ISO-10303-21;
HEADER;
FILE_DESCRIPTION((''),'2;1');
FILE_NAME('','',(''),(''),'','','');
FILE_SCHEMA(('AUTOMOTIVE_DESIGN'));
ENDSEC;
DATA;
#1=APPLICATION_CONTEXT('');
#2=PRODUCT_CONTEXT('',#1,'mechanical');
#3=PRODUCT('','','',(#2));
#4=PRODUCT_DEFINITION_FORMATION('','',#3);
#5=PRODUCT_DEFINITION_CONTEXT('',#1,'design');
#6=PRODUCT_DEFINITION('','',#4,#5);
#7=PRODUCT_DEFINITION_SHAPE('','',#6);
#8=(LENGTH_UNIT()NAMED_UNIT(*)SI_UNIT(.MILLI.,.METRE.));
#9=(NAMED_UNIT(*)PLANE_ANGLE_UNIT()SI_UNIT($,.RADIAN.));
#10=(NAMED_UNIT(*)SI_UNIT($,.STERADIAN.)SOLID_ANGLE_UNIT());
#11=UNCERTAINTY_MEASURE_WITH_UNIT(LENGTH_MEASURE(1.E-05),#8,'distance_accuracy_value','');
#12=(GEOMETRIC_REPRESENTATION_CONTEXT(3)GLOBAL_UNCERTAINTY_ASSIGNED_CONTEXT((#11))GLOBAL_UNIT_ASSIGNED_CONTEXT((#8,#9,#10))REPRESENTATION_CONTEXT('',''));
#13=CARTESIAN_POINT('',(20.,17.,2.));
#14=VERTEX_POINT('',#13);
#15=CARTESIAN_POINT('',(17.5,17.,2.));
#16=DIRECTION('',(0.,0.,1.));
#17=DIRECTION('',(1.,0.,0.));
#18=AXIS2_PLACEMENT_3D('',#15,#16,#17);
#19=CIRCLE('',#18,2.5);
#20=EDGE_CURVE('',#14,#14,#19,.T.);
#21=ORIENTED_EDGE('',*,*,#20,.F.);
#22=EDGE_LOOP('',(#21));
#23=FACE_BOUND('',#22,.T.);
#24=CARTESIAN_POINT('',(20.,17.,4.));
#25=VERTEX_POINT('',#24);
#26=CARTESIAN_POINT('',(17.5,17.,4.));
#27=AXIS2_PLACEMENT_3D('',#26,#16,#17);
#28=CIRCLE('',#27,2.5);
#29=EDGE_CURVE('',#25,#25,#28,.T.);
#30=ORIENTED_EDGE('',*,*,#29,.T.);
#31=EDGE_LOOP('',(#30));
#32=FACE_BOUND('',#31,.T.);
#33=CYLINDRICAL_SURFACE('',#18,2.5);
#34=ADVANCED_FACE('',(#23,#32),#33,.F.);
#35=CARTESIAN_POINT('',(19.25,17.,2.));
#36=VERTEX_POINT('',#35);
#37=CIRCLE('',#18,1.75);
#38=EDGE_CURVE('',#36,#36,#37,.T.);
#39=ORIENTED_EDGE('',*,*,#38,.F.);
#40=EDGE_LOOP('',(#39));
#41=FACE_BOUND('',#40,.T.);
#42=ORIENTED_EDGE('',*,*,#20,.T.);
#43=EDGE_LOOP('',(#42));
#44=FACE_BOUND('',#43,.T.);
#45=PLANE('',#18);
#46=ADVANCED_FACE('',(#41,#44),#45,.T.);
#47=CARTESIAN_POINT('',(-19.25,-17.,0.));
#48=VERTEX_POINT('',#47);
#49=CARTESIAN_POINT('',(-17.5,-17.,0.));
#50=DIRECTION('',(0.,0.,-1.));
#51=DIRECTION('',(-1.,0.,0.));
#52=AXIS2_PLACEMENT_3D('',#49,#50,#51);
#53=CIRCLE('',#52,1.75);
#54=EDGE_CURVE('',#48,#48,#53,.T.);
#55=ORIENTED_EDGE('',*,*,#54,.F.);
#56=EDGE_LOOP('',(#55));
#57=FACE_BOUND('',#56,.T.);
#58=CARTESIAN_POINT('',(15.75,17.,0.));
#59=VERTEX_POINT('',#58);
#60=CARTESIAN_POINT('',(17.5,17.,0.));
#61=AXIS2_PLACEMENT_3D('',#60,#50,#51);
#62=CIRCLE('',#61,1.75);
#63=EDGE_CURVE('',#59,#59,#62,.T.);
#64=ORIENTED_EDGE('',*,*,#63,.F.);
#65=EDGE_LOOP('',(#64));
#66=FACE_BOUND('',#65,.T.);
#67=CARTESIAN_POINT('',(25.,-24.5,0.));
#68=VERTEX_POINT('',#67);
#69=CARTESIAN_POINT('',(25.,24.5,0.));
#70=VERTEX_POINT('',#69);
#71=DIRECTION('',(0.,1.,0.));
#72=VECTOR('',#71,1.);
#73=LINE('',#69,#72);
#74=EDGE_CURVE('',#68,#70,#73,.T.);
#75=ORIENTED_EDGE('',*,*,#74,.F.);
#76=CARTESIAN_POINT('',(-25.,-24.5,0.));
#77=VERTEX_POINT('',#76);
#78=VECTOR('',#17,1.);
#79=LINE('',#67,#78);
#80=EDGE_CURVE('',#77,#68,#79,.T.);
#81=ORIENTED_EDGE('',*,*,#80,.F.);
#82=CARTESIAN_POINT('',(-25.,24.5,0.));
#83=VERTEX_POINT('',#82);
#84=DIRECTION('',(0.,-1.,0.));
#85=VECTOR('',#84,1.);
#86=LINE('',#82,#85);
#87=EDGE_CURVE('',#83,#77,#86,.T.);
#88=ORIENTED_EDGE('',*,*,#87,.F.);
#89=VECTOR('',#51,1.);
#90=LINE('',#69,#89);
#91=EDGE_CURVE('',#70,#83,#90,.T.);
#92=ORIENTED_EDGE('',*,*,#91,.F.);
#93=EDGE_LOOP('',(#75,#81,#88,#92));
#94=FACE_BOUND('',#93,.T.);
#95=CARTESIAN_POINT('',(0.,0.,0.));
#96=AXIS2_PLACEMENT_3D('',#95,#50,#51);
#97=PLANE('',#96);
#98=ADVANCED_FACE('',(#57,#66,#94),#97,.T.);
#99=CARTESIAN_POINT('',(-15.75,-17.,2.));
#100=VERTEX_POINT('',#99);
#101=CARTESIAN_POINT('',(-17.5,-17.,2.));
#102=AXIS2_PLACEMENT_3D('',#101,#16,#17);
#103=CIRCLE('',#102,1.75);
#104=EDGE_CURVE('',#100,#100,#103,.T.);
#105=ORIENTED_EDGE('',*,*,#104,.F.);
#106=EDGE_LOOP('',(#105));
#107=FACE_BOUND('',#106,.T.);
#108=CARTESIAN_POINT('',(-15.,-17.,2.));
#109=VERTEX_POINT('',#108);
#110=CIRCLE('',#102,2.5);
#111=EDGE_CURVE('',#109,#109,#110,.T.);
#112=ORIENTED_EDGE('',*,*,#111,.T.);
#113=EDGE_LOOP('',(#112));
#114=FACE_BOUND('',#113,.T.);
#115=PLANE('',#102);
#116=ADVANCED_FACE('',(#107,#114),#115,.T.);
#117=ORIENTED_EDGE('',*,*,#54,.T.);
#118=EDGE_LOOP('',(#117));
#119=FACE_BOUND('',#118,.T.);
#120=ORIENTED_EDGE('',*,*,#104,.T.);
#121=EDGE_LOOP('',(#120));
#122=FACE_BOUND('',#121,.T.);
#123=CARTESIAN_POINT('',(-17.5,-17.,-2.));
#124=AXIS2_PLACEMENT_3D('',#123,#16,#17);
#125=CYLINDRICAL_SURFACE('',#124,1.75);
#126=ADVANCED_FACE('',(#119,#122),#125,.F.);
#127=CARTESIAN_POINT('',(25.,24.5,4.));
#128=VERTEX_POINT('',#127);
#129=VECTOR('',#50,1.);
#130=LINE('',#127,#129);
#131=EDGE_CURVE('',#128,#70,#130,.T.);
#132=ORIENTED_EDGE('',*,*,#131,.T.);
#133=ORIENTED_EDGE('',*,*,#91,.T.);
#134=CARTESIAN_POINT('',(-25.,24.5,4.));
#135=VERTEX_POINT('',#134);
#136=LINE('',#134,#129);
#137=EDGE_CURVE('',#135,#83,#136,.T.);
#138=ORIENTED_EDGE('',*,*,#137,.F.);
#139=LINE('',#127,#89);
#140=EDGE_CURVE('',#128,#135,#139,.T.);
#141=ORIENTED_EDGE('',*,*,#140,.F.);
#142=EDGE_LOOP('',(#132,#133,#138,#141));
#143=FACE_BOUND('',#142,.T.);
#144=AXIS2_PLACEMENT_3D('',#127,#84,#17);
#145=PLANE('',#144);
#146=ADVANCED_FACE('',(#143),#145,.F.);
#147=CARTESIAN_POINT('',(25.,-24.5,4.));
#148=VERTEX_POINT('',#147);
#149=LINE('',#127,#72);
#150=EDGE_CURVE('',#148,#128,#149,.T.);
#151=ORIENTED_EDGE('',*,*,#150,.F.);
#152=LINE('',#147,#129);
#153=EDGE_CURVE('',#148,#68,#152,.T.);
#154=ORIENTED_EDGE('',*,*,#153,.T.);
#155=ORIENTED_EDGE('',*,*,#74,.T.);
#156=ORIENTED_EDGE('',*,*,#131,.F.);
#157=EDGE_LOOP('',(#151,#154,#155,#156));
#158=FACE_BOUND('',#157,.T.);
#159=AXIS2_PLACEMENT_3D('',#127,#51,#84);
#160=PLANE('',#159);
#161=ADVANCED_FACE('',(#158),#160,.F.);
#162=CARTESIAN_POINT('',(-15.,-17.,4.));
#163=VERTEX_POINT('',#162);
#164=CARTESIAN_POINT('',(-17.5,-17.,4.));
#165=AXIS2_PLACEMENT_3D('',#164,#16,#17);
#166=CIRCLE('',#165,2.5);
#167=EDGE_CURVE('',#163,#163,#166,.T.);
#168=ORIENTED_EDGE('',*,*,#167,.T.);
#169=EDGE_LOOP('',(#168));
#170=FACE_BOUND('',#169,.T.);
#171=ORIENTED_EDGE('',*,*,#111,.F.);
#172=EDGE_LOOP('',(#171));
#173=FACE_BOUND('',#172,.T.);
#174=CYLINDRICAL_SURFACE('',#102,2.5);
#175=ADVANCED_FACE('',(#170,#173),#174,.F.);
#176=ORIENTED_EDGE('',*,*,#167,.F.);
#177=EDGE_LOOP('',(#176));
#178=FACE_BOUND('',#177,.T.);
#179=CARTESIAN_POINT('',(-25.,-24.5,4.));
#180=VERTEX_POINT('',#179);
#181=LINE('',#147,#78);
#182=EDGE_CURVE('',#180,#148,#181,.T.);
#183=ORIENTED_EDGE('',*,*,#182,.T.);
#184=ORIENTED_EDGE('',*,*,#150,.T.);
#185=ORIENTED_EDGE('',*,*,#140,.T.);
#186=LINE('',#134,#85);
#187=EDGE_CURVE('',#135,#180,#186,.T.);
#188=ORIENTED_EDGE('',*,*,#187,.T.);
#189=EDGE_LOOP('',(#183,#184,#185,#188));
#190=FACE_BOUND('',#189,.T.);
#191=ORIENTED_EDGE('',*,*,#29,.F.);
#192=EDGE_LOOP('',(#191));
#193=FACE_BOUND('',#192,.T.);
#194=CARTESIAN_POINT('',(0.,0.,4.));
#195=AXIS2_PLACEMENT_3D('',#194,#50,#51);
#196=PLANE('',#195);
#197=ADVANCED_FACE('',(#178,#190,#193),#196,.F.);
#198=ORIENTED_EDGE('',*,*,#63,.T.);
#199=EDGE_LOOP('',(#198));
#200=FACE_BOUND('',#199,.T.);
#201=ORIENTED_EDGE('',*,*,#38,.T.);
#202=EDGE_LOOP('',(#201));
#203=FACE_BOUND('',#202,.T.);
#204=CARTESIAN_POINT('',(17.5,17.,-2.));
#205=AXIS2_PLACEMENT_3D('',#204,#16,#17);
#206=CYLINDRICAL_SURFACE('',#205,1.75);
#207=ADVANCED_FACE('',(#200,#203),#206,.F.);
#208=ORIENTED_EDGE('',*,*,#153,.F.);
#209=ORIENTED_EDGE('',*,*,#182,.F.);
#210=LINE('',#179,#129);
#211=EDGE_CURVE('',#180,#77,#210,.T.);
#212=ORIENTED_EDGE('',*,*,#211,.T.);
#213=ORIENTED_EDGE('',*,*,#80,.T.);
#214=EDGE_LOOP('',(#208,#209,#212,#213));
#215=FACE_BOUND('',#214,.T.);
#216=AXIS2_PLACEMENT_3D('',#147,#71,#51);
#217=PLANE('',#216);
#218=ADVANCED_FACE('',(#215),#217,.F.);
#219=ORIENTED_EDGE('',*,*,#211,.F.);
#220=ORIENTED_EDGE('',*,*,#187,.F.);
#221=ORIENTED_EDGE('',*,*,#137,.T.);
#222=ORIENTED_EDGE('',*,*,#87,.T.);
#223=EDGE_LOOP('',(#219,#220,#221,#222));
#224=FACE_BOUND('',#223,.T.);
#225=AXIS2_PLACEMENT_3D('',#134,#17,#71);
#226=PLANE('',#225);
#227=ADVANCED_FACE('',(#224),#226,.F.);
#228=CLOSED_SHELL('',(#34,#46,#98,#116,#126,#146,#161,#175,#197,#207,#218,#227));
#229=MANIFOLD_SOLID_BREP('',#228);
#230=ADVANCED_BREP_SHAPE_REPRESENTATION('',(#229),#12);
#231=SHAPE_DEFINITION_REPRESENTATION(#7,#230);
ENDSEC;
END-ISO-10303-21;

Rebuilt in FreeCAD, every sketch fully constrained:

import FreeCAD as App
import Part
import Sketcher

V = App.Vector

doc = App.newDocument("Part")
body = doc.addObject("PartDesign::Body", "Body")

# Sketch on XY plane
sketch1 = body.newObject("Sketcher::SketchObject", "Sketch")
sketch1.AttachmentSupport = (doc.getObject("XY_Plane"), [""])
sketch1.MapMode = "FlatFace"
sketch1.addGeometry(Part.LineSegment(V(-25, 24.5, 0), V(-25, -24.5, 0)), False)
sketch1.addGeometry(Part.LineSegment(V(-25, -24.5, 0), V(25, -24.5, 0)), False)
sketch1.addGeometry(Part.LineSegment(V(25, -24.5, 0), V(25, 24.5, 0)), False)
sketch1.addGeometry(Part.LineSegment(V(25, 24.5, 0), V(-25, 24.5, 0)), False)
sketch1.addConstraint(Sketcher.Constraint("Coincident", 0, 2, 1, 1))
sketch1.addConstraint(Sketcher.Constraint("Coincident", 1, 2, 2, 1))
sketch1.addConstraint(Sketcher.Constraint("Coincident", 2, 2, 3, 1))
sketch1.addConstraint(Sketcher.Constraint("Coincident", 3, 2, 0, 1))
sketch1.addConstraint(Sketcher.Constraint("Vertical", 0))
sketch1.addConstraint(Sketcher.Constraint("Horizontal", 1))
sketch1.addConstraint(Sketcher.Constraint("Vertical", 2))
sketch1.addConstraint(Sketcher.Constraint("Horizontal", 3))
sketch1.addConstraint(Sketcher.Constraint("Symmetric", 0, 2, 2, 2, -1, 1))
sketch1.addConstraint(Sketcher.Constraint("DistanceX", 1, 1, 1, 2, 50.0))
sketch1.addConstraint(Sketcher.Constraint("DistanceY", 0, 2, 0, 1, 49.0))
pad1 = body.newObject("PartDesign::Pad", "Pad")
pad1.Profile = sketch1
pad1.Length = 4

# Sketch on XY plane
sketch2 = body.newObject("Sketcher::SketchObject", "Sketch001")
sketch2.AttachmentSupport = (doc.getObject("XY_Plane"), [""])
sketch2.MapMode = "FlatFace"
sketch2.AttachmentOffset = App.Placement(V(0, 0, 4), App.Rotation())
sketch2.addGeometry(Part.Circle(V(17.5, 17, 0), V(0, 0, 1), 2.5), False)
sketch2.addGeometry(Part.Circle(V(-17.5, -17, 0), V(0, 0, 1), 2.5), False)
sketch2.addConstraint(Sketcher.Constraint("Equal", 0, 1))
sketch2.addConstraint(Sketcher.Constraint("Symmetric", 0, 3, 1, 3, -1, 1))
sketch2.addConstraint(Sketcher.Constraint("Diameter", 0, 5.0))
sketch2.addConstraint(Sketcher.Constraint("DistanceY", -1, 1, 0, 3, 17.0))
sketch2.addConstraint(Sketcher.Constraint("DistanceX", 1, 3, 0, 3, 35.0))
pocket1 = body.newObject("PartDesign::Pocket", "Pocket")
pocket1.Profile = sketch2
pocket1.Length = 2

# Sketch on XY plane
sketch3 = body.newObject("Sketcher::SketchObject", "Sketch002")
sketch3.AttachmentSupport = (doc.getObject("XY_Plane"), [""])
sketch3.MapMode = "FlatFace"
sketch3.AttachmentOffset = App.Placement(V(0, 0, 2), App.Rotation())
sketch3.addGeometry(Part.Circle(V(-17.5, -17, 0), V(0, 0, 1), 1.75), False)
sketch3.addGeometry(Part.Circle(V(17.5, 17, 0), V(0, 0, 1), 1.75), False)
sketch3.addConstraint(Sketcher.Constraint("Equal", 0, 1))
sketch3.addConstraint(Sketcher.Constraint("Symmetric", 0, 3, 1, 3, -1, 1))
sketch3.addConstraint(Sketcher.Constraint("Diameter", 0, 3.5))
sketch3.addConstraint(Sketcher.Constraint("DistanceY", 0, 3, -1, 1, 17.0))
sketch3.addConstraint(Sketcher.Constraint("DistanceX", 0, 3, 1, 3, 35.0))
pocket2 = body.newObject("PartDesign::Pocket", "Pocket001")
pocket2.Profile = sketch3
pocket2.Length = 4

doc.recompute()
